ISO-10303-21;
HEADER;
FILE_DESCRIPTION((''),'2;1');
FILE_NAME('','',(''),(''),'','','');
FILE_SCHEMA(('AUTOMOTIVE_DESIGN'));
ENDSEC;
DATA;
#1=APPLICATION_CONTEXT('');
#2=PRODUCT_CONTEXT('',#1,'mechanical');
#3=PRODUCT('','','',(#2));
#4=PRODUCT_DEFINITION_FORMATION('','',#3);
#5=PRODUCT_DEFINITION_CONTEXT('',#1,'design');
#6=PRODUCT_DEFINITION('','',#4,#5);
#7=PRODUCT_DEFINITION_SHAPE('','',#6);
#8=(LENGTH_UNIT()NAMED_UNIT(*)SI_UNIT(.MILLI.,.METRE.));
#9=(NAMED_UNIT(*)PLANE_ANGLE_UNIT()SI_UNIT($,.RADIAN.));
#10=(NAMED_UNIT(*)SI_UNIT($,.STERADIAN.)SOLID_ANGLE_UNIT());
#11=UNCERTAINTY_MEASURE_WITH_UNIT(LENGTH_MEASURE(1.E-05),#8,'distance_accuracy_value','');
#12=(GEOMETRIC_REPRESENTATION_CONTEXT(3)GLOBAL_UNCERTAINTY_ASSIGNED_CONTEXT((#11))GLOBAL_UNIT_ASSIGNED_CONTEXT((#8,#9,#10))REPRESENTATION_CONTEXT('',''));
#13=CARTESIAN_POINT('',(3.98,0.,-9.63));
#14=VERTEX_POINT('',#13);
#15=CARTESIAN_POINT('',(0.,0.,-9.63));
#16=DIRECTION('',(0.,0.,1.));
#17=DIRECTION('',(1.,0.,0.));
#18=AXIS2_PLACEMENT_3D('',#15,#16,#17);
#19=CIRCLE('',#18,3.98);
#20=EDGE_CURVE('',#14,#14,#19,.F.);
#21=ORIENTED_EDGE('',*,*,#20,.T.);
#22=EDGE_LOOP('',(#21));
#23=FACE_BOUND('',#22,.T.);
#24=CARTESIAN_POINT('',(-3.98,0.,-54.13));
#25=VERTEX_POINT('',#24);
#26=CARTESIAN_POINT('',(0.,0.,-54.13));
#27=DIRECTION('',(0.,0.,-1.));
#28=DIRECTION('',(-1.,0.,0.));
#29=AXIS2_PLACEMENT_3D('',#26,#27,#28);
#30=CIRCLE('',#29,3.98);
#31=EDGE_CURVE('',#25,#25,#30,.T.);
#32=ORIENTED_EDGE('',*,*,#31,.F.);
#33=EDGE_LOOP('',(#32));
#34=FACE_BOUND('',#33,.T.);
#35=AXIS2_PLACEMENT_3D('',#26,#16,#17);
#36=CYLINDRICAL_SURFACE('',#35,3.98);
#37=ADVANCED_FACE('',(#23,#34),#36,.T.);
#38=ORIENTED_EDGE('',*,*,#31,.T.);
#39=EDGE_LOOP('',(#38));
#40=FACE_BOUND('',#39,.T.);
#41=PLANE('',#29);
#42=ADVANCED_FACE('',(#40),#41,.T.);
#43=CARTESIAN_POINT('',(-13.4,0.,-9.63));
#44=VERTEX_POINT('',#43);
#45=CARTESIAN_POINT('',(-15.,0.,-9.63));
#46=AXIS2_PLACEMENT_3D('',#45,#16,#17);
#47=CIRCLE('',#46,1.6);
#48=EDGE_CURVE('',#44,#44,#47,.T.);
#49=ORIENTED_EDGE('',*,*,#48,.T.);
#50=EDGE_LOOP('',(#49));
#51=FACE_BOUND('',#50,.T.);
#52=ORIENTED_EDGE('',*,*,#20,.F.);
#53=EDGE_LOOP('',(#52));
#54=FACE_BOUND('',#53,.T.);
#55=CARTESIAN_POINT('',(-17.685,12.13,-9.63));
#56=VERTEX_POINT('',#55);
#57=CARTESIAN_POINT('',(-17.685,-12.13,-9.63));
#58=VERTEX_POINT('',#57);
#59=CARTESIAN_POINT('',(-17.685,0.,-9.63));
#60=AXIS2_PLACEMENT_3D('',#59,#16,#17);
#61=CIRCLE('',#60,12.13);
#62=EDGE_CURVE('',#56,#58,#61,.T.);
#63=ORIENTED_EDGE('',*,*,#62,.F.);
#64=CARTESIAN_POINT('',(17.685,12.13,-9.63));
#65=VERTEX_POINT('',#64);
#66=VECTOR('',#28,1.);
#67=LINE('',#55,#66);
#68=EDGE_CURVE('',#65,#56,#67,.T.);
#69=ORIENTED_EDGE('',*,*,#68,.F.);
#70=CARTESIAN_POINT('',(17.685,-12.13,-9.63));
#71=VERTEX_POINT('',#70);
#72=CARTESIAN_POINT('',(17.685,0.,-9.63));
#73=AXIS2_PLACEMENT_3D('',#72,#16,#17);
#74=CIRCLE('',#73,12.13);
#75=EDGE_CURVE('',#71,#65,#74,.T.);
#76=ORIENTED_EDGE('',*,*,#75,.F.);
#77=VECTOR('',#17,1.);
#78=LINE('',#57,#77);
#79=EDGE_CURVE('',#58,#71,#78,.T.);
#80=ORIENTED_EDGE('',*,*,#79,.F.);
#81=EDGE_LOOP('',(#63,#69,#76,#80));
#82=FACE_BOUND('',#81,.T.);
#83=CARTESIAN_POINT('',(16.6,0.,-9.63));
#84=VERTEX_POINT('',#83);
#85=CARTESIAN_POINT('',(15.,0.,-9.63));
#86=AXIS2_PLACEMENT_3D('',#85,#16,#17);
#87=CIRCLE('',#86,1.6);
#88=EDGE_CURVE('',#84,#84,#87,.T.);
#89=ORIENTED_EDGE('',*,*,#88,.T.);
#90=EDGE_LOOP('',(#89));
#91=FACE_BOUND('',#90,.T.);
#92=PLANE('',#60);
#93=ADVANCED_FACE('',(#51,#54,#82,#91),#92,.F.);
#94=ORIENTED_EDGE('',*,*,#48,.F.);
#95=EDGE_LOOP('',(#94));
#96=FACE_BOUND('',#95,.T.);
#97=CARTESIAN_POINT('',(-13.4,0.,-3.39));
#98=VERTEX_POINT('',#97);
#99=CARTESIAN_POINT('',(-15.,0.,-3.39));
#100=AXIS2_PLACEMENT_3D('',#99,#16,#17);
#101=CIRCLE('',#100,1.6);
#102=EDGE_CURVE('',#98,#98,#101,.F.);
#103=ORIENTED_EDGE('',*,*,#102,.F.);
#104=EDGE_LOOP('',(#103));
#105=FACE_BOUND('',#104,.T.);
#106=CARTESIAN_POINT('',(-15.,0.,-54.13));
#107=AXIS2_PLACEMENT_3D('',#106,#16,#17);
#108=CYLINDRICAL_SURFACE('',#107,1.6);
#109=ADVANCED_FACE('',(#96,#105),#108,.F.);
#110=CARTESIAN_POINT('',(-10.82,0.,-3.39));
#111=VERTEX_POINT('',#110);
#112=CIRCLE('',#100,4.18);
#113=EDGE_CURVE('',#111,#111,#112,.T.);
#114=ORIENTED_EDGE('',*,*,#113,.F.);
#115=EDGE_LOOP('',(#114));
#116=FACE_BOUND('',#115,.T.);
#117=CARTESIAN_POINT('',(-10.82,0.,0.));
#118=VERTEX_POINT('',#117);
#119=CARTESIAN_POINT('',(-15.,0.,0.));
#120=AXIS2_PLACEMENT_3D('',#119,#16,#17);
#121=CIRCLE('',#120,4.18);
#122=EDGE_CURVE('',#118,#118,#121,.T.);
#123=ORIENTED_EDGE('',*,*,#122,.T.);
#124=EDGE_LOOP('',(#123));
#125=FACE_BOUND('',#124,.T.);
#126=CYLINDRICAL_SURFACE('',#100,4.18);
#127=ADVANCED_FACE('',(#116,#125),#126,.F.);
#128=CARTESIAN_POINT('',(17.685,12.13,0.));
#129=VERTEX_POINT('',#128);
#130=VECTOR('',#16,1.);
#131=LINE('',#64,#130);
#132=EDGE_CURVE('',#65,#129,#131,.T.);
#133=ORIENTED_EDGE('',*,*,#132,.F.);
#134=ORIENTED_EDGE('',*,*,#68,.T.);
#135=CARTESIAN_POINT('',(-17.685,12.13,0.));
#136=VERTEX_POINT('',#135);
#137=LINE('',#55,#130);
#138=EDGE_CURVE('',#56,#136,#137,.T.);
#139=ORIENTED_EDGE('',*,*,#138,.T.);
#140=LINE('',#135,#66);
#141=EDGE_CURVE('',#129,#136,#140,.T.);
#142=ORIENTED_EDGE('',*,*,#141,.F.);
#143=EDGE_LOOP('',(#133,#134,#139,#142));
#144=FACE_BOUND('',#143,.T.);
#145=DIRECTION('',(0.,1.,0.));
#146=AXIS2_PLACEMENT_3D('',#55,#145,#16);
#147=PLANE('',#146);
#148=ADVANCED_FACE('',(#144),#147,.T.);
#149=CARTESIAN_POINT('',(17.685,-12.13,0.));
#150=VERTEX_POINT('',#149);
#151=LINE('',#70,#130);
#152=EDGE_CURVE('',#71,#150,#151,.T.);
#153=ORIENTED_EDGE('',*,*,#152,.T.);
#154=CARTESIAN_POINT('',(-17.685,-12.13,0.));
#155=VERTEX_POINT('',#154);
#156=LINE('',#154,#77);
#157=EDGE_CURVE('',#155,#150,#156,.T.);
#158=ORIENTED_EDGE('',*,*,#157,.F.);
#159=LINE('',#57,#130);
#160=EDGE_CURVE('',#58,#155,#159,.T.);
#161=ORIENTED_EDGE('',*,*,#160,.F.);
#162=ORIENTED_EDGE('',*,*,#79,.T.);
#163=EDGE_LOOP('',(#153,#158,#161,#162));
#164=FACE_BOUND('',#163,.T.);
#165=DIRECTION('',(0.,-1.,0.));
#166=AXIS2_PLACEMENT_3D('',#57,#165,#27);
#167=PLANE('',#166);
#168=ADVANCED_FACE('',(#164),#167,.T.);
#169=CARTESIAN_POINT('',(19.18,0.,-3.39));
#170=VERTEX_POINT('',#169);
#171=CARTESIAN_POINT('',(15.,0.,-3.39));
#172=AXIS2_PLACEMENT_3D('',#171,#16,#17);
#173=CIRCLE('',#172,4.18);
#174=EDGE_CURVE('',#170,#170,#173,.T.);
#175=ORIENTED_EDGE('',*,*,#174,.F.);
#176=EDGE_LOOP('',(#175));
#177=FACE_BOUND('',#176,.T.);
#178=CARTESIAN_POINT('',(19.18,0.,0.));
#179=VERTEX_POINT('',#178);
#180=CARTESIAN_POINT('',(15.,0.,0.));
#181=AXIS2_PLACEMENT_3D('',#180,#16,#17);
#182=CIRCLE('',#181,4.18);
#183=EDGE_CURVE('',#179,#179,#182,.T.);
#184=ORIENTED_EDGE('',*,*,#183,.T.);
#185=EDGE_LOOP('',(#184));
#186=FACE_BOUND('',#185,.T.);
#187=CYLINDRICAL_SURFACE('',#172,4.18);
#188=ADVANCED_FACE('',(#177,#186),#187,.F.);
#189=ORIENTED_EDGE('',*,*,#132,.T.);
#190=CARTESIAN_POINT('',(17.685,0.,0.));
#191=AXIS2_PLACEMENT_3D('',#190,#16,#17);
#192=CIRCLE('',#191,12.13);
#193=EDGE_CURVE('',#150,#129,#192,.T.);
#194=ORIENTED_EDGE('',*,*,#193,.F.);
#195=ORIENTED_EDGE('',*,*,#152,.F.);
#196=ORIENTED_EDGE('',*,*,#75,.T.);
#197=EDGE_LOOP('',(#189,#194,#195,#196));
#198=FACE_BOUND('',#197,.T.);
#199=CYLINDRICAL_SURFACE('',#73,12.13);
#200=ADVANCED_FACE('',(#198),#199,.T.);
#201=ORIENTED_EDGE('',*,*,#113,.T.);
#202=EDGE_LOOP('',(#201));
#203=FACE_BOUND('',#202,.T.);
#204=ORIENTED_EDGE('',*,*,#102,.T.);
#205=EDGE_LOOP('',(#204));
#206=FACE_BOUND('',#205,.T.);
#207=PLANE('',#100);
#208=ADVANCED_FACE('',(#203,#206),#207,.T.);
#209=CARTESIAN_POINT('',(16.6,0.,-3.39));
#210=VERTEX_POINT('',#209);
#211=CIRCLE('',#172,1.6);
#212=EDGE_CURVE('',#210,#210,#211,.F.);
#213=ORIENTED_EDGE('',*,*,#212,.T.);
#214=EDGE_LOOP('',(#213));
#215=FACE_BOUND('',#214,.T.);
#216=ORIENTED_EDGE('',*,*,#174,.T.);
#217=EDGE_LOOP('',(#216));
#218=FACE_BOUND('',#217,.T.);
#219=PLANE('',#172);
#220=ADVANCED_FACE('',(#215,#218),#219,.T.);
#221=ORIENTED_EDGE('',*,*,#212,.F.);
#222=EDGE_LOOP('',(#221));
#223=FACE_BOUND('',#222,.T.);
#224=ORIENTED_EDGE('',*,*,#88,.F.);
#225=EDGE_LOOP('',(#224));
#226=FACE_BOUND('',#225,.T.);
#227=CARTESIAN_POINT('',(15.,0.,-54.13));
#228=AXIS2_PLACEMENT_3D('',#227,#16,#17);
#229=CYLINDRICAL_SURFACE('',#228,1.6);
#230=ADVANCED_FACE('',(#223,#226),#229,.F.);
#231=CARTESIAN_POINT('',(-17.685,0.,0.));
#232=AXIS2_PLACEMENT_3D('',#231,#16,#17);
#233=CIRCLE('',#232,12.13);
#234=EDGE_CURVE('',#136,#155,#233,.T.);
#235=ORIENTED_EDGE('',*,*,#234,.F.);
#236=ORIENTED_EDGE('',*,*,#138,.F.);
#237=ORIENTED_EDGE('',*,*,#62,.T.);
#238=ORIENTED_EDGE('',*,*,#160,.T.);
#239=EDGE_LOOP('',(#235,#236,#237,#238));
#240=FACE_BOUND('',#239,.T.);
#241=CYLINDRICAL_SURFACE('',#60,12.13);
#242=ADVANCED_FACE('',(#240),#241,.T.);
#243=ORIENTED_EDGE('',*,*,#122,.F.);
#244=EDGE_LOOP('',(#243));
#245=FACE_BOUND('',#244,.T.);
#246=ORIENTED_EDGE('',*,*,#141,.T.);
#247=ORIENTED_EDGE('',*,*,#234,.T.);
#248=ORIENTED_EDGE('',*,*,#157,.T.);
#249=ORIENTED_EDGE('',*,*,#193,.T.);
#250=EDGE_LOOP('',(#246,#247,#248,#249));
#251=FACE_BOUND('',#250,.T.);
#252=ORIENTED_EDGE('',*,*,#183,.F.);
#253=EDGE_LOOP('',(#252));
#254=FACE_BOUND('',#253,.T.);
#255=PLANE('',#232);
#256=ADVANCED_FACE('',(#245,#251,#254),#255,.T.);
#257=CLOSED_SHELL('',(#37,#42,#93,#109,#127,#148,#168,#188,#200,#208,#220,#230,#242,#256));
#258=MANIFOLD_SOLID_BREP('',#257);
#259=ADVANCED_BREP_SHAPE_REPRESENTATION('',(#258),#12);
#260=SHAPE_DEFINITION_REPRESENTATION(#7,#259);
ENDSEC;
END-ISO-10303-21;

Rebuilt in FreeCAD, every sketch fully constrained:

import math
import FreeCAD as App
import Part
import Sketcher
from FreeCAD import Vector
Q = App.Units.Quantity

doc = App.newDocument("Part")
body = doc.addObject("PartDesign::Body", "Body")

# Sketch on XY plane
sketch1 = body.newObject("Sketcher::SketchObject", "Sketch")
sketch1.AttachmentSupport = (doc.getObject("XY_Plane"), [""])
sketch1.MapMode = "FlatFace"
sketch1.addGeometry([
    Part.LineSegment(Vector(17.685, 12.13, 0), Vector(-17.685, 12.13, 0)),
    Part.ArcOfCircle(Part.Circle(Vector(-17.685, 0, 0), Vector(0, 0, 1), 12.13), math.radians(90), math.radians(270)),
    Part.LineSegment(Vector(-17.685, -12.13, 0), Vector(17.685, -12.13, 0)),
    Part.ArcOfCircle(Part.Circle(Vector(17.685, 0, 0), Vector(0, 0, 1), 12.13), math.radians(-90), math.radians(90)),
], False)
sketch1.addConstraint([
    Sketcher.Constraint("Tangent", 0, 2, 1, 1),
    Sketcher.Constraint("Tangent", 1, 2, 2, 1),
    Sketcher.Constraint("Tangent", 2, 2, 3, 1),
    Sketcher.Constraint("Tangent", 3, 2, 0, 1),
    Sketcher.Constraint("Horizontal", 0),
    Sketcher.Constraint("Horizontal", 2),
    Sketcher.Constraint("Symmetric", 1, 3, 3, 3, -1, 1),
    Sketcher.Constraint("Radius", 1, Q("12.13 mm")),
    Sketcher.Constraint("DistanceX", 0, 2, 0, 1, Q("35.37 mm")),
])
pad1 = body.newObject("PartDesign::Pad", "Pad")
pad1.Profile = sketch1
pad1.Length = 9.63
pad1.Reversed = True

# Sketch on XY plane
sketch2 = body.newObject("Sketcher::SketchObject", "Sketch001")
sketch2.AttachmentSupport = (doc.getObject("XY_Plane"), [""])
sketch2.MapMode = "FlatFace"
sketch2.AttachmentOffset = App.Placement(Vector(0, 0, -9.63), App.Rotation())
sketch2.addGeometry(Part.Circle(Vector(0, 0, 0), Vector(0, 0, 1), 3.98), False)
sketch2.addConstraint([
    Sketcher.Constraint("Coincident", 0, 3, -1, 1),
    Sketcher.Constraint("Diameter", 0, Q("7.96 mm")),
])
pad2 = body.newObject("PartDesign::Pad", "Pad001")
pad2.Profile = sketch2
pad2.Length = 44.5
pad2.Reversed = True

# Sketch on XY plane
sketch3 = body.newObject("Sketcher::SketchObject", "Sketch002")
sketch3.AttachmentSupport = (doc.getObject("XY_Plane"), [""])
sketch3.MapMode = "FlatFace"
sketch3.addGeometry([
    Part.Circle(Vector(-15, 0, 0), Vector(0, 0, 1), 1.6),
    Part.Circle(Vector(15, 0, 0), Vector(0, 0, 1), 1.6),
], False)
sketch3.addConstraint([
    Sketcher.Constraint("Equal", 0, 1),
    Sketcher.Constraint("Symmetric", 0, 3, 1, 3, -1, 1),
    Sketcher.Constraint("PointOnObject", 0, 3, -1),
    Sketcher.Constraint("Diameter", 0, Q("3.2 mm")),
    Sketcher.Constraint("DistanceX", 0, 3, -1, 1, Q("15 mm")),
])
pocket1 = body.newObject("PartDesign::Pocket", "Pocket")
pocket1.Profile = sketch3
pocket1.Type = "ThroughAll"

# Sketch on XY plane
sketch4 = body.newObject("Sketcher::SketchObject", "Sketch003")
sketch4.AttachmentSupport = (doc.getObject("XY_Plane"), [""])
sketch4.MapMode = "FlatFace"
sketch4.addGeometry([
    Part.Circle(Vector(-15, 0, 0), Vector(0, 0, 1), 4.18),
    Part.Circle(Vector(15, 0, 0), Vector(0, 0, 1), 4.18),
], False)
sketch4.addConstraint([
    Sketcher.Constraint("Equal", 0, 1),
    Sketcher.Constraint("Symmetric", 0, 3, 1, 3, -1, 1),
    Sketcher.Constraint("PointOnObject", 0, 3, -1),
    Sketcher.Constraint("Diameter", 0, Q("8.36 mm")),
    Sketcher.Constraint("DistanceX", 0, 3, -1, 1, Q("15 mm")),
])
pocket2 = body.newObject("PartDesign::Pocket", "Pocket001")
pocket2.Profile = sketch4
pocket2.Length = 3.39

doc.recompute()
